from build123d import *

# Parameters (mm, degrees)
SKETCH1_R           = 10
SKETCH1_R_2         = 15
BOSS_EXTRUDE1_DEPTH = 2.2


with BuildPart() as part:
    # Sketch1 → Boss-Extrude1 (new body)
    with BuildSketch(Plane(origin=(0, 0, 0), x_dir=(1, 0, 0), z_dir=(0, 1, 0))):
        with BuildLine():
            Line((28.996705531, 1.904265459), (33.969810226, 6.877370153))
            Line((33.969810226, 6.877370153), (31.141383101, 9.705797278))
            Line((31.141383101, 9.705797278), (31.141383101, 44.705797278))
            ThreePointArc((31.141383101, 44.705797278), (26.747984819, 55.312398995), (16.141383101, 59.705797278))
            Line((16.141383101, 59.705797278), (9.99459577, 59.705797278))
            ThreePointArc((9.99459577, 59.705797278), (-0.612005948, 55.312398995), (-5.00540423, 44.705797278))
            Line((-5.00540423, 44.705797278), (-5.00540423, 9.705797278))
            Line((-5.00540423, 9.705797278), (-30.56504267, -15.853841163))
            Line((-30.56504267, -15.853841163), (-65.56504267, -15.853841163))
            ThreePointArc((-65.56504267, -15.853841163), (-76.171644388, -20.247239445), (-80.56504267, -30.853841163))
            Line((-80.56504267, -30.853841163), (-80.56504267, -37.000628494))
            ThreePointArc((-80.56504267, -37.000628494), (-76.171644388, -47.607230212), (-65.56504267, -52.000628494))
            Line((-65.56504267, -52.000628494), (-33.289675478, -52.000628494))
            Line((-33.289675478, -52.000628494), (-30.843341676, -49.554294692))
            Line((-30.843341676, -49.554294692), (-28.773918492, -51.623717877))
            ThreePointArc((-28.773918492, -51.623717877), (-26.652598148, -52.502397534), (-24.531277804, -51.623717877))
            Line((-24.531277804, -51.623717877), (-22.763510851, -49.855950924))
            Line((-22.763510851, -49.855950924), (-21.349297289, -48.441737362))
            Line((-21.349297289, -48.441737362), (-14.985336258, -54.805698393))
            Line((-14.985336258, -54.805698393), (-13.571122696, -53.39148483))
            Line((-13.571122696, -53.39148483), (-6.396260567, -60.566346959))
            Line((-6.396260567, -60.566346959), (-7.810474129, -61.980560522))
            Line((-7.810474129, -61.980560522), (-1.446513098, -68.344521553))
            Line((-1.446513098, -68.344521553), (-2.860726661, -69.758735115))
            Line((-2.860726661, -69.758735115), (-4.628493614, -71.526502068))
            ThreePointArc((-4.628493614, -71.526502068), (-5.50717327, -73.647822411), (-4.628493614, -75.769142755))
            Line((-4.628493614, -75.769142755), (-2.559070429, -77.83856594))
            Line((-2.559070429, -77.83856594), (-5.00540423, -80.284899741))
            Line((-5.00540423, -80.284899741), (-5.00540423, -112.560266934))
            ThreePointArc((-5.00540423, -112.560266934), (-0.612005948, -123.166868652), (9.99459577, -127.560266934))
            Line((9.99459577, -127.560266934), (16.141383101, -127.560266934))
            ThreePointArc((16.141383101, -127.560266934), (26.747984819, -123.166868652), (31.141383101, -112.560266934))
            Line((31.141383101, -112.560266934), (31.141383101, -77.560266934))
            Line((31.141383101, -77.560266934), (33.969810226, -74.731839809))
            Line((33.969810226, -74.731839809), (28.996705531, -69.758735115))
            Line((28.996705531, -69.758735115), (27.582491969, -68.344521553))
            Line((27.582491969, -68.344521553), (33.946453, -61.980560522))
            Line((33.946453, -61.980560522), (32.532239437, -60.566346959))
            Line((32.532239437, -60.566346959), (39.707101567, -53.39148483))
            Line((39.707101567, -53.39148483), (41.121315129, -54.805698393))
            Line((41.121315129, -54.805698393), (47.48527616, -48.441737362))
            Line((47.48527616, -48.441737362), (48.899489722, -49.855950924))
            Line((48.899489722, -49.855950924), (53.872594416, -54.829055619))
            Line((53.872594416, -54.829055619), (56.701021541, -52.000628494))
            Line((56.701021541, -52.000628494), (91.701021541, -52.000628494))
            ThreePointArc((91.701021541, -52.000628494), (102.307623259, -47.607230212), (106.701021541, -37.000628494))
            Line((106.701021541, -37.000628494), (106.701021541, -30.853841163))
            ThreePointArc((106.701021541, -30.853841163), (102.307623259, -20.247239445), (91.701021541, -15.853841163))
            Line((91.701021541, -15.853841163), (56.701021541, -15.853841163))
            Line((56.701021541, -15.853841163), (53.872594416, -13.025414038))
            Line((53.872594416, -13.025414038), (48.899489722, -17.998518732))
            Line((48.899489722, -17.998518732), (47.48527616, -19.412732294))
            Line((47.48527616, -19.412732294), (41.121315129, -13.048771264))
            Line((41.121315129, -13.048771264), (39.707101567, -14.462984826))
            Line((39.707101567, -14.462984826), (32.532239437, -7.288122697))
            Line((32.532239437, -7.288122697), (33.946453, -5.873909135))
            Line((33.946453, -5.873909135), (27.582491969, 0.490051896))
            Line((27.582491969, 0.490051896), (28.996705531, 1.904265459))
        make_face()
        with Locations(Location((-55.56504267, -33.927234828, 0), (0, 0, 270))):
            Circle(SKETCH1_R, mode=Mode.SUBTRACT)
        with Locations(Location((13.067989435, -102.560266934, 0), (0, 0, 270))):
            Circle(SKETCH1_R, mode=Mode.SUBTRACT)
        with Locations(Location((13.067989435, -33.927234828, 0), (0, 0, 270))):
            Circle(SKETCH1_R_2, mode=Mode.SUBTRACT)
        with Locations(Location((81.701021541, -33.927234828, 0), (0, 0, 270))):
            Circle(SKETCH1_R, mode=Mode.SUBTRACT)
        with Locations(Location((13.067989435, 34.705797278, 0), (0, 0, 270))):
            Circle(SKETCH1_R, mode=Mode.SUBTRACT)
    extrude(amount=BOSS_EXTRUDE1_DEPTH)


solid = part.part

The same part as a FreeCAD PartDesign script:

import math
import FreeCAD as App
import Part
import Sketcher

V = App.Vector

doc = App.newDocument("Part")
params = doc.addObject("Spreadsheet::Sheet", "Params")
for row, (alias, value) in enumerate([
    ("sketch1_diameter", "20 mm"),
    ("sketch1_diameter2", "30 mm"),
    ("sketch1_radius", "3 mm"),
    ("sketch1_width", "35 mm"),
    ("sketch1_length", "4 mm"),
    ("pad1_length", "2.2 mm"),
], start=1):
    params.set(f"A{row}", alias)
    params.set(f"B{row}", "=" + value)
    params.setAlias(f"B{row}", alias)

body = doc.addObject("PartDesign::Body", "Body")

# Sketch on XZ plane
sketch1 = doc.addObject("Sketcher::SketchObject", "Sketch")
body.addObject(sketch1)
sketch1.AttachmentSupport = (doc.XZ_Plane, [""])
sketch1.MapMode = "FlatFace"
sketch1.addGeometry(Part.LineSegment(V(29, -1.9, 0), V(34, -6.9, 0)), False)
sketch1.addGeometry(Part.LineSegment(V(34, -6.9, 0), V(31.1, -9.7, 0)), False)
sketch1.addGeometry(Part.LineSegment(V(31.1, -9.7, 0), V(31.1, -44.7, 0)), False)
sketch1.addGeometry(Part.ArcOfCircle(Part.Circle(V(16.1, -44.7, 0), V(0, 0, 1), 15), math.radians(-90), math.radians(0)), False)
sketch1.addGeometry(Part.LineSegment(V(16.1, -59.7, 0), V(10, -59.7, 0)), False)
sketch1.addGeometry(Part.ArcOfCircle(Part.Circle(V(10, -44.7, 0), V(0, 0, 1), 15), math.radians(-180), math.radians(-90)), False)
sketch1.addGeometry(Part.LineSegment(V(-5, -44.7, 0), V(-5, -9.7, 0)), False)
sketch1.addGeometry(Part.LineSegment(V(-5, -9.7, 0), V(-30.6, 15.9, 0)), False)
sketch1.addGeometry(Part.LineSegment(V(-30.6, 15.9, 0), V(-65.6, 15.9, 0)), False)
sketch1.addGeometry(Part.ArcOfCircle(Part.Circle(V(-65.6, 30.9, 0), V(0, 0, 1), 15), math.radians(180), math.radians(270)), False)
sketch1.addGeometry(Part.LineSegment(V(-80.6, 30.9, 0), V(-80.6, 37, 0)), False)
sketch1.addGeometry(Part.ArcOfCircle(Part.Circle(V(-65.6, 37, 0), V(0, 0, 1), 15), math.radians(90), math.radians(180)), False)
sketch1.addGeometry(Part.LineSegment(V(-65.6, 52, 0), V(-33.3, 52, 0)), False)
sketch1.addGeometry(Part.LineSegment(V(-33.3, 52, 0), V(-30.8, 49.6, 0)), False)
sketch1.addGeometry(Part.LineSegment(V(-30.8, 49.6, 0), V(-28.8, 51.6, 0)), False)
sketch1.addGeometry(Part.ArcOfCircle(Part.Circle(V(-26.7, 49.5, 0), V(0, 0, 1), 3), math.radians(45), math.radians(135)), False)
sketch1.addGeometry(Part.LineSegment(V(-24.5, 51.6, 0), V(-21.3, 48.4, 0)), False)
sketch1.addGeometry(Part.LineSegment(V(-21.3, 48.4, 0), V(-15, 54.8, 0)), False)
sketch1.addGeometry(Part.LineSegment(V(-15, 54.8, 0), V(-13.6, 53.4, 0)), False)
sketch1.addGeometry(Part.LineSegment(V(-13.6, 53.4, 0), V(-6.4, 60.6, 0)), False)
sketch1.addGeometry(Part.LineSegment(V(-6.4, 60.6, 0), V(-7.8, 62, 0)), False)
sketch1.addGeometry(Part.LineSegment(V(-7.8, 62, 0), V(-1.4, 68.3, 0)), False)
sketch1.addGeometry(Part.LineSegment(V(-1.4, 68.3, 0), V(-2.9, 69.8, 0)), False)
sketch1.addGeometry(Part.LineSegment(V(-2.9, 69.8, 0), V(-4.6, 71.5, 0)), False)
sketch1.addGeometry(Part.ArcOfCircle(Part.Circle(V(-2.5, 73.6, 0), V(0, 0, 1), 3), math.radians(135), math.radians(225)), False)
sketch1.addGeometry(Part.LineSegment(V(-4.6, 75.8, 0), V(-2.6, 77.8, 0)), False)
sketch1.addGeometry(Part.LineSegment(V(-2.6, 77.8, 0), V(-5, 80.3, 0)), False)
sketch1.addGeometry(Part.LineSegment(V(-5, 80.3, 0), V(-5, 112.6, 0)), False)
sketch1.addGeometry(Part.ArcOfCircle(Part.Circle(V(10, 112.6, 0), V(0, 0, 1), 15), math.radians(90), math.radians(180)), False)
sketch1.addGeometry(Part.LineSegment(V(10, 127.6, 0), V(16.1, 127.6, 0)), False)
sketch1.addGeometry(Part.ArcOfCircle(Part.Circle(V(16.1, 112.6, 0), V(0, 0, 1), 15), math.radians(0), math.radians(90)), False)
sketch1.addGeometry(Part.LineSegment(V(31.1, 112.6, 0), V(31.1, 77.6, 0)), False)
sketch1.addGeometry(Part.LineSegment(V(31.1, 77.6, 0), V(34, 74.7, 0)), False)
sketch1.addGeometry(Part.LineSegment(V(34, 74.7, 0), V(29, 69.8, 0)), False)
sketch1.addGeometry(Part.LineSegment(V(29, 69.8, 0), V(27.6, 68.3, 0)), False)
sketch1.addGeometry(Part.LineSegment(V(27.6, 68.3, 0), V(33.9, 62, 0)), False)
sketch1.addGeometry(Part.LineSegment(V(33.9, 62, 0), V(32.5, 60.6, 0)), False)
sketch1.addGeometry(Part.LineSegment(V(32.5, 60.6, 0), V(39.7, 53.4, 0)), False)
sketch1.addGeometry(Part.LineSegment(V(39.7, 53.4, 0), V(41.1, 54.8, 0)), False)
sketch1.addGeometry(Part.LineSegment(V(41.1, 54.8, 0), V(47.5, 48.4, 0)), False)
sketch1.addGeometry(Part.LineSegment(V(47.5, 48.4, 0), V(48.9, 49.9, 0)), False)
sketch1.addGeometry(Part.LineSegment(V(48.9, 49.9, 0), V(53.9, 54.8, 0)), False)
sketch1.addGeometry(Part.LineSegment(V(53.9, 54.8, 0), V(56.7, 52, 0)), False)
sketch1.addGeometry(Part.LineSegment(V(56.7, 52, 0), V(91.7, 52, 0)), False)
sketch1.addGeometry(Part.ArcOfCircle(Part.Circle(V(91.7, 37, 0), V(0, 0, 1), 15), math.radians(0), math.radians(90)), False)
sketch1.addGeometry(Part.LineSegment(V(106.7, 37, 0), V(106.7, 30.9, 0)), False)
sketch1.addGeometry(Part.ArcOfCircle(Part.Circle(V(91.7, 30.9, 0), V(0, 0, 1), 15), math.radians(-90), math.radians(0)), False)
sketch1.addGeometry(Part.LineSegment(V(91.7, 15.9, 0), V(56.7, 15.9, 0)), False)
sketch1.addGeometry(Part.LineSegment(V(56.7, 15.9, 0), V(53.9, 13, 0)), False)
sketch1.addGeometry(Part.LineSegment(V(53.9, 13, 0), V(47.5, 19.4, 0)), False)
sketch1.addGeometry(Part.LineSegment(V(47.5, 19.4, 0), V(41.1, 13, 0)), False)
sketch1.addGeometry(Part.LineSegment(V(41.1, 13, 0), V(39.7, 14.5, 0)), False)
sketch1.addGeometry(Part.LineSegment(V(39.7, 14.5, 0), V(32.5, 7.3, 0)), False)
sketch1.addGeometry(Part.LineSegment(V(32.5, 7.3, 0), V(33.9, 5.9, 0)), False)
sketch1.addGeometry(Part.LineSegment(V(33.9, 5.9, 0), V(27.6, -0.5, 0)), False)
sketch1.addGeometry(Part.LineSegment(V(27.6, -0.5, 0), V(29, -1.9, 0)), False)
sketch1.addGeometry(Part.Circle(V(13.1, 102.6, 0), V(0, 0, 1), 10), False)
sketch1.addGeometry(Part.Circle(V(-55.6, 33.9, 0), V(0, 0, 1), 10), False)
sketch1.addGeometry(Part.Circle(V(13.1, 33.9, 0), V(0, 0, 1), 15), False)
sketch1.addGeometry(Part.Circle(V(81.7, 33.9, 0), V(0, 0, 1), 10), False)
sketch1.addGeometry(Part.Circle(V(13.1, -34.7, 0), V(0, 0, 1), 10), False)
sketch1.addConstraint(Sketcher.Constraint("Coincident", 0, 2, 1, 1))
sketch1.addConstraint(Sketcher.Constraint("Coincident", 1, 2, 2, 1))
sketch1.addConstraint(Sketcher.Constraint("Tangent", 2, 2, 3, 2))
sketch1.addConstraint(Sketcher.Constraint("Tangent", 3, 1, 4, 1))
sketch1.addConstraint(Sketcher.Constraint("Tangent", 4, 2, 5, 2))
sketch1.addConstraint(Sketcher.Constraint("Tangent", 5, 1, 6, 1))
sketch1.addConstraint(Sketcher.Constraint("Coincident", 6, 2, 7, 1))
sketch1.addConstraint(Sketcher.Constraint("Coincident", 7, 2, 8, 1))
sketch1.addConstraint(Sketcher.Constraint("Tangent", 8, 2, 9, 2))
sketch1.addConstraint(Sketcher.Constraint("Tangent", 9, 1, 10, 1))
sketch1.addConstraint(Sketcher.Constraint("Tangent", 10, 2, 11, 2))
sketch1.addConstraint(Sketcher.Constraint("Tangent", 11, 1, 12, 1))
sketch1.addConstraint(Sketcher.Constraint("Coincident", 12, 2, 13, 1))
sketch1.addConstraint(Sketcher.Constraint("Coincident", 13, 2, 14, 1))
sketch1.addConstraint(Sketcher.Constraint("Tangent", 14, 2, 15, 2))
sketch1.addConstraint(Sketcher.Constraint("Tangent", 15, 1, 16, 1))
sketch1.addConstraint(Sketcher.Constraint("Coincident", 16, 2, 17, 1))
sketch1.addConstraint(Sketcher.Constraint("Coincident", 17, 2, 18, 1))
sketch1.addConstraint(Sketcher.Constraint("Coincident", 18, 2, 19, 1))
sketch1.addConstraint(Sketcher.Constraint("Coincident", 19, 2, 20, 1))
sketch1.addConstraint(Sketcher.Constraint("Coincident", 20, 2, 21, 1))
sketch1.addConstraint(Sketcher.Constraint("Coincident", 21, 2, 22, 1))
sketch1.addConstraint(Sketcher.Constraint("Coincident", 22, 2, 23, 1))
sketch1.addConstraint(Sketcher.Constraint("Tangent", 23, 2, 24, 2))
sketch1.addConstraint(Sketcher.Constraint("Tangent", 24, 1, 25, 1))
sketch1.addConstraint(Sketcher.Constraint("Coincident", 25, 2, 26, 1))
sketch1.addConstraint(Sketcher.Constraint("Coincident", 26, 2, 27, 1))
sketch1.addConstraint(Sketcher.Constraint("Tangent", 27, 2, 28, 2))
sketch1.addConstraint(Sketcher.Constraint("Tangent", 28, 1, 29, 1))
sketch1.addConstraint(Sketcher.Constraint("Tangent", 29, 2, 30, 2))
sketch1.addConstraint(Sketcher.Constraint("Tangent", 30, 1, 31, 1))
sketch1.addConstraint(Sketcher.Constraint("Coincident", 31, 2, 32, 1))
sketch1.addConstraint(Sketcher.Constraint("Coincident", 32, 2, 33, 1))
sketch1.addConstraint(Sketcher.Constraint("Coincident", 33, 2, 34, 1))
sketch1.addConstraint(Sketcher.Constraint("Coincident", 34, 2, 35, 1))
sketch1.addConstraint(Sketcher.Constraint("Coincident", 35, 2, 36, 1))
sketch1.addConstraint(Sketcher.Constraint("Coincident", 36, 2, 37, 1))
sketch1.addConstraint(Sketcher.Constraint("Coincident", 37, 2, 38, 1))
sketch1.addConstraint(Sketcher.Constraint("Coincident", 38, 2, 39, 1))
sketch1.addConstraint(Sketcher.Constraint("Coincident", 39, 2, 40, 1))
sketch1.addConstraint(Sketcher.Constraint("Coincident", 40, 2, 41, 1))
sketch1.addConstraint(Sketcher.Constraint("Coincident", 41, 2, 42, 1))
sketch1.addConstraint(Sketcher.Constraint("Coincident", 42, 2, 43, 1))
sketch1.addConstraint(Sketcher.Constraint("Tangent", 43, 2, 44, 2))
sketch1.addConstraint(Sketcher.Constraint("Tangent", 44, 1, 45, 1))
sketch1.addConstraint(Sketcher.Constraint("Tangent", 45, 2, 46, 2))
sketch1.addConstraint(Sketcher.Constraint("Tangent", 46, 1, 47, 1))
sketch1.addConstraint(Sketcher.Constraint("Coincident", 47, 2, 48, 1))
sketch1.addConstraint(Sketcher.Constraint("Coincident", 48, 2, 49, 1))
sketch1.addConstraint(Sketcher.Constraint("Coincident", 49, 2, 50, 1))
sketch1.addConstraint(Sketcher.Constraint("Coincident", 50, 2, 51, 1))
sketch1.addConstraint(Sketcher.Constraint("Coincident", 51, 2, 52, 1))
sketch1.addConstraint(Sketcher.Constraint("Coincident", 52, 2, 53, 1))
sketch1.addConstraint(Sketcher.Constraint("Coincident", 53, 2, 54, 1))
sketch1.addConstraint(Sketcher.Constraint("Coincident", 54, 2, 55, 1))
sketch1.addConstraint(Sketcher.Constraint("Coincident", 55, 2, 0, 1))
sketch1.addConstraint(Sketcher.Constraint("Vertical", 2))
sketch1.addConstraint(Sketcher.Constraint("Horizontal", 4))
sketch1.addConstraint(Sketcher.Constraint("Vertical", 6))
sketch1.addConstraint(Sketcher.Constraint("Horizontal", 8))
sketch1.addConstraint(Sketcher.Constraint("Vertical", 10))
sketch1.addConstraint(Sketcher.Constraint("Horizontal", 12))
sketch1.addConstraint(Sketcher.Constraint("Vertical", 27))
sketch1.addConstraint(Sketcher.Constraint("Horizontal", 29))
sketch1.addConstraint(Sketcher.Constraint("Vertical", 31))
sketch1.addConstraint(Sketcher.Constraint("Horizontal", 43))
sketch1.addConstraint(Sketcher.Constraint("Vertical", 45))
sketch1.addConstraint(Sketcher.Constraint("Horizontal", 47))
sketch1.addConstraint(Sketcher.Constraint("Equal", 3, 5))
sketch1.addConstraint(Sketcher.Constraint("Equal", 5, 9))
sketch1.addConstraint(Sketcher.Constraint("Equal", 9, 11))
sketch1.addConstraint(Sketcher.Constraint("Equal", 15, 24))
sketch1.addConstraint(Sketcher.Constraint("Equal", 11, 28))
sketch1.addConstraint(Sketcher.Constraint("Equal", 28, 30))
sketch1.addConstraint(Sketcher.Constraint("Equal", 30, 44))
sketch1.addConstraint(Sketcher.Constraint("Equal", 44, 46))
sketch1.addConstraint(Sketcher.Constraint("Equal", 56, 57))
sketch1.addConstraint(Sketcher.Constraint("Equal", 46, 58))
sketch1.addConstraint(Sketcher.Constraint("Equal", 57, 59))
sketch1.addConstraint(Sketcher.Constraint("Equal", 59, 60))
sketch1.addConstraint(Sketcher.Constraint("Perpendicular", 0, 1))
sketch1.addConstraint(Sketcher.Constraint("Perpendicular", 1, 7))
sketch1.addConstraint(Sketcher.Constraint("Parallel", 7, 13))
sketch1.addConstraint(Sketcher.Constraint("Perpendicular", 13, 14))
sketch1.addConstraint(Sketcher.Constraint("Perpendicular", 14, 16))
sketch1.addConstraint(Sketcher.Constraint("Perpendicular", 16, 17))
sketch1.addConstraint(Sketcher.Constraint("Perpendicular", 17, 18))
sketch1.addConstraint(Sketcher.Constraint("Perpendicular", 18, 19))
sketch1.addConstraint(Sketcher.Constraint("Perpendicular", 19, 20))
sketch1.addConstraint(Sketcher.Constraint("Perpendicular", 20, 21))
sketch1.addConstraint(Sketcher.Constraint("Perpendicular", 21, 22))
sketch1.addConstraint(Sketcher.Constraint("Parallel", 22, 23))
sketch1.addConstraint(Sketcher.Constraint("Perpendicular", 23, 25))
sketch1.addConstraint(Sketcher.Constraint("Perpendicular", 25, 26))
sketch1.addConstraint(Sketcher.Constraint("Parallel", 26, 32))
sketch1.addConstraint(Sketcher.Constraint("Perpendicular", 32, 33))
sketch1.addConstraint(Sketcher.Constraint("Parallel", 33, 34))
sketch1.addConstraint(Sketcher.Constraint("Perpendicular", 34, 35))
sketch1.addConstraint(Sketcher.Constraint("Perpendicular", 35, 36))
sketch1.addConstraint(Sketcher.Constraint("Perpendicular", 36, 37))
sketch1.addConstraint(Sketcher.Constraint("Perpendicular", 37, 38))
sketch1.addConstraint(Sketcher.Constraint("Perpendicular", 38, 39))
sketch1.addConstraint(Sketcher.Constraint("Perpendicular", 39, 40))
sketch1.addConstraint(Sketcher.Constraint("Parallel", 40, 41))
sketch1.addConstraint(Sketcher.Constraint("Perpendicular", 41, 42))
sketch1.addConstraint(Sketcher.Constraint("Perpendicular", 42, 48))
sketch1.addConstraint(Sketcher.Constraint("Perpendicular", 48, 49))
sketch1.addConstraint(Sketcher.Constraint("Perpendicular", 49, 50))
sketch1.addConstraint(Sketcher.Constraint("Perpendicular", 50, 51))
sketch1.addConstraint(Sketcher.Constraint("Perpendicular", 51, 52))
sketch1.addConstraint(Sketcher.Constraint("Perpendicular", 52, 53))
sketch1.addConstraint(Sketcher.Constraint("Perpendicular", 53, 54))
sketch1.addConstraint(Sketcher.Constraint("Perpendicular", 54, 55))
sketch1.addConstraint(Sketcher.Constraint("Horizontal", 11, 3, 44, 3))
sketch1.addConstraint(Sketcher.Constraint("Horizontal", 9, 3, 46, 3))
sketch1.addConstraint(Sketcher.Constraint("Horizontal", 57, 3, 58, 3))
sketch1.addConstraint(Sketcher.Constraint("Horizontal", 58, 3, 59, 3))
sketch1.addConstraint(Sketcher.Constraint("Horizontal", 1, 2, 6, 2))
sketch1.addConstraint(Sketcher.Constraint("Horizontal", 14, 2, 15, 1))
sketch1.addConstraint(Sketcher.Constraint("Horizontal", 22, 2, 33, 2))
sketch1.addConstraint(Sketcher.Constraint("Horizontal", 21, 2, 34, 2))
sketch1.addConstraint(Sketcher.Constraint("Horizontal", 20, 2, 35, 2))
sketch1.addConstraint(Sketcher.Constraint("Horizontal", 19, 2, 36, 2))
sketch1.addConstraint(Sketcher.Constraint("Horizontal", 18, 2, 37, 2))
sketch1.addConstraint(Sketcher.Constraint("Horizontal", 17, 2, 38, 2))
sketch1.addConstraint(Sketcher.Constraint("Horizontal", 16, 2, 39, 2))
sketch1.addConstraint(Sketcher.Constraint("Vertical", 5, 3, 28, 3))
sketch1.addConstraint(Sketcher.Constraint("Vertical", 3, 3, 30, 3))
sketch1.addConstraint(Sketcher.Constraint("Vertical", 56, 3, 58, 3))
sketch1.addConstraint(Sketcher.Constraint("Vertical", 58, 3, 60, 3))
sketch1.addConstraint(Sketcher.Constraint("Vertical", 0, 2, 32, 2))
sketch1.addConstraint(Sketcher.Constraint("Vertical", 42, 2, 47, 2))
sketch1.addConstraint(Sketcher.Constraint("Vertical", 41, 2, 48, 2))
sketch1.addConstraint(Sketcher.Constraint("Vertical", 39, 2, 49, 2))
sketch1.addConstraint(Sketcher.Constraint("Vertical", 38, 2, 50, 2))
sketch1.addConstraint(Sketcher.Constraint("Vertical", 37, 2, 51, 2))
sketch1.addConstraint(Sketcher.Constraint("Vertical", 36, 2, 52, 2))
sketch1.addConstraint(Sketcher.Constraint("Vertical", 35, 2, 53, 2))
sketch1.addConstraint(Sketcher.Constraint("Vertical", 34, 2, 54, 2))
sketch1.addConstraint(Sketcher.Constraint("Vertical", 33, 2, 55, 2))
sketch1.addConstraint(Sketcher.Constraint("Equal", 8, 43))
sketch1.addConstraint(Sketcher.Constraint("Equal", 47, 2))
sketch1.addConstraint(Sketcher.Constraint("Equal", 29, 10))
sketch1.addConstraint(Sketcher.Constraint("Equal", 12, 27))
sketch1.addConstraint(Sketcher.Constraint("Equal", 6, 31))
sketch1.addConstraint(Sketcher.Constraint("Equal", 18, 20))
sketch1.addConstraint(Sketcher.Constraint("Equal", 17, 21))
sketch1.addConstraint(Sketcher.Constraint("Equal", 20, 22))
sketch1.addConstraint(Sketcher.Constraint("Equal", 14, 25))
sketch1.addConstraint(Sketcher.Constraint("Equal", 13, 26))
sketch1.addConstraint(Sketcher.Constraint("Equal", 38, 40))
sketch1.addConstraint(Sketcher.Constraint("Equal", 33, 41))
sketch1.addConstraint(Sketcher.Constraint("Equal", 32, 42))
sketch1.addConstraint(Sketcher.Constraint("Diameter", 56, 20.0))
sketch1.addConstraint(Sketcher.Constraint("Diameter", 58, 30.0))
sketch1.addConstraint(Sketcher.Constraint("Radius", 15, 3.0))
sketch1.addConstraint(Sketcher.Constraint("DistanceX", 8, 2, 8, 1, 35.0))
sketch1.addConstraint(Sketcher.Constraint("Distance", 1, 4.0))
sketch1.addConstraint(Sketcher.Constraint("Distance", 17, 9.0))
sketch1.addConstraint(Sketcher.Constraint("Distance", 18, 2.0))
sketch1.addConstraint(Sketcher.Constraint("Distance", 16, 4.5))
sketch1.addConstraint(Sketcher.Constraint("DistanceX", 15, 3, -1, 1, 26.652598))
sketch1.addConstraint(Sketcher.Constraint("DistanceY", -1, 1, 17, 2, 54.805698))
sketch1.addConstraint(Sketcher.Constraint("DistanceY", -1, 1, 26, 2, 80.2849))
sketch1.addConstraint(Sketcher.Constraint("DistanceX", -1, 1, 37, 2, 39.707102))
sketch1.addConstraint(Sketcher.Constraint("Distance", 13, 3.459638))
sketch1.addConstraint(Sketcher.Constraint("DistanceX", 12, 1, 12, 2, 32.275367))
sketch1.addConstraint(Sketcher.Constraint("DistanceX", -1, 1, 56, 3, 13.067989))
sketch1.addConstraint(Sketcher.Constraint("DistanceX", -1, 1, 59, 3, 81.701022))
sketch1.addConstraint(Sketcher.Constraint("DistanceY", -1, 1, 56, 3, 102.560267))
sketch1.addConstraint(Sketcher.Constraint("DistanceX", 57, 3, -1, 1, 55.565043))
sketch1.addConstraint(Sketcher.Constraint("DistanceY", -1, 1, 57, 3, 33.927235))
sketch1.addConstraint(Sketcher.Constraint("DistanceY", 60, 3, -1, 1, 34.705797))
sketch1.setExpression("Constraints[153]", "Params.sketch1_diameter")
sketch1.setExpression("Constraints[154]", "Params.sketch1_diameter2")
sketch1.setExpression("Constraints[155]", "Params.sketch1_radius")
sketch1.setExpression("Constraints[156]", "Params.sketch1_width")
sketch1.setExpression("Constraints[157]", "Params.sketch1_length")
pad1 = doc.addObject("PartDesign::Pad", "Pad")
body.addObject(pad1)
pad1.Profile = sketch1
pad1.setExpression("Length", "Params.pad1_length")
pad1.Reversed = True

doc.recompute()
